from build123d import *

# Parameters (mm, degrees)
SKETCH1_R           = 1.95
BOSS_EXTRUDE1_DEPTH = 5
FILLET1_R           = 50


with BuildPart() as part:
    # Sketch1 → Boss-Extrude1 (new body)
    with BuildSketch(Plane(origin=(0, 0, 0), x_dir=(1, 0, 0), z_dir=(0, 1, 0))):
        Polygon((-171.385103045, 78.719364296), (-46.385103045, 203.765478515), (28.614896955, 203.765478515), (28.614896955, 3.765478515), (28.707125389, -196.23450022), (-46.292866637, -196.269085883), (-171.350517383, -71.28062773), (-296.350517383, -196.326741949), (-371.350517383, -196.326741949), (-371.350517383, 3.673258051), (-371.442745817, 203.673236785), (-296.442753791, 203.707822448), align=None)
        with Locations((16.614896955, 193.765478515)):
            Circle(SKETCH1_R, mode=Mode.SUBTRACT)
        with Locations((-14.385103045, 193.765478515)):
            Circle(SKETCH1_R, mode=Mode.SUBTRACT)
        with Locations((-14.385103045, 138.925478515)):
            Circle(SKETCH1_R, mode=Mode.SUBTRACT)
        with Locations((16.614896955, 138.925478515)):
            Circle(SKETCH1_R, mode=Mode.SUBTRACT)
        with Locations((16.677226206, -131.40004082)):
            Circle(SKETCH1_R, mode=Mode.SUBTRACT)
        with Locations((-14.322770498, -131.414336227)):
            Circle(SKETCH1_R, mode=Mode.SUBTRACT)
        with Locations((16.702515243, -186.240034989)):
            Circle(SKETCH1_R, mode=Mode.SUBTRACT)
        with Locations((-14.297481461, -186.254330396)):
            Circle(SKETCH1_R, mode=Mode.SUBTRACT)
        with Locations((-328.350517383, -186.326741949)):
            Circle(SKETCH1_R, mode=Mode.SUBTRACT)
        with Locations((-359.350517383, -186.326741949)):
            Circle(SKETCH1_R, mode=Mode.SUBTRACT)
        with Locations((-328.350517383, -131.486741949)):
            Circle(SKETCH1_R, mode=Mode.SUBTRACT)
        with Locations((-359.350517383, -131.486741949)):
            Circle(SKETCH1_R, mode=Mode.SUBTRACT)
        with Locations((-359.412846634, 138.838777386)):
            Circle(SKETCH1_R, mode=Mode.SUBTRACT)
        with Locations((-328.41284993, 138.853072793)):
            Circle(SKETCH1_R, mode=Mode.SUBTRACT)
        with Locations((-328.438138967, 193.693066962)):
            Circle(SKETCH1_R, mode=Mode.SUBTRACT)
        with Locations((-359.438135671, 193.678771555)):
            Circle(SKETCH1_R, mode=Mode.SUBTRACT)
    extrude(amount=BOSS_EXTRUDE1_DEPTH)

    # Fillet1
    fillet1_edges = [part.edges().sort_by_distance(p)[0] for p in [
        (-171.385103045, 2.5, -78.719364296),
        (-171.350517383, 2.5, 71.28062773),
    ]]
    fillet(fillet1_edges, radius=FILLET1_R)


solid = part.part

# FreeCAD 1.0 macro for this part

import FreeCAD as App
import Part
import Sketcher
from FreeCAD import Vector


def edges_at(feature, points):
    """Names of the edges that pass closest to the given points."""
    edges = feature.Shape.Edges
    near = lambda p: min(range(len(edges)), key=lambda i: edges[i].distToShape(Part.Vertex(*p))[0])
    return sorted({f"Edge{near(p) + 1}" for p in points})


def add_polygon(sketch, points):
    """Adds a closed chain of lines whose ends are joined by coincident constraints."""
    first, n = sketch.GeometryCount, len(points)
    for a, b in zip(points, points[1:] + points[:1]):
        sketch.addGeometry(Part.LineSegment(App.Vector(*a, 0), App.Vector(*b, 0)), False)
    for i in range(n):
        sketch.addConstraint(Sketcher.Constraint("Coincident", first + i, 2, first + (i + 1) % n, 1))

doc = App.newDocument("Part")
body = doc.addObject("PartDesign::Body", "Body")

# Sketch on XZ plane
sketch1 = body.newObject("Sketcher::SketchObject", "Sketch")
sketch1.AttachmentSupport = (doc.getObject("XZ_Plane"), [""])
sketch1.MapMode = "FlatFace"
add_polygon(sketch1, [(-46.385103, -203.765479), (-171.385103, -78.719364), (-296.442754, -203.707822), (-371.442746, -203.673237), (-371.350517, -3.673258), (-371.350517, 196.326742), (-296.350517, 196.326742), (-171.350517, 71.280628), (-46.292867, 196.269086), (28.707125, 196.2345), (28.614897, -3.765479), (28.614897, -203.765479)])  # lines 0-11
sketch1.addGeometry(Part.Circle(Vector(16.702515, 186.240035, 0), Vector(0, 0, 1), 1.95), False)  # 12
sketch1.addGeometry(Part.Circle(Vector(-14.297481, 186.25433, 0), Vector(0, 0, 1), 1.95), False)  # 13
sketch1.addGeometry(Part.Circle(Vector(16.677226, 131.400041, 0), Vector(0, 0, 1), 1.95), False)  # 14
sketch1.addGeometry(Part.Circle(Vector(-14.32277, 131.414336, 0), Vector(0, 0, 1), 1.95), False)  # 15
sketch1.addGeometry(Part.Circle(Vector(-328.350517, 186.326742, 0), Vector(0, 0, 1), 1.95), False)  # 16
sketch1.addGeometry(Part.Circle(Vector(-359.350517, 186.326742, 0), Vector(0, 0, 1), 1.95), False)  # 17
sketch1.addGeometry(Part.Circle(Vector(-328.350517, 131.486742, 0), Vector(0, 0, 1), 1.95), False)  # 18
sketch1.addGeometry(Part.Circle(Vector(-359.350517, 131.486742, 0), Vector(0, 0, 1), 1.95), False)  # 19
sketch1.addGeometry(Part.Circle(Vector(16.614897, -138.925479, 0), Vector(0, 0, 1), 1.95), False)  # 20
sketch1.addGeometry(Part.Circle(Vector(-14.385103, -138.925479, 0), Vector(0, 0, 1), 1.95), False)  # 21
sketch1.addGeometry(Part.Circle(Vector(16.614897, -193.765479, 0), Vector(0, 0, 1), 1.95), False)  # 22
sketch1.addGeometry(Part.Circle(Vector(-14.385103, -193.765479, 0), Vector(0, 0, 1), 1.95), False)  # 23
sketch1.addGeometry(Part.Circle(Vector(-328.41285, -138.853073, 0), Vector(0, 0, 1), 1.95), False)  # 24
sketch1.addGeometry(Part.Circle(Vector(-359.412847, -138.838777, 0), Vector(0, 0, 1), 1.95), False)  # 25
sketch1.addGeometry(Part.Circle(Vector(-328.438139, -193.693067, 0), Vector(0, 0, 1), 1.95), False)  # 26
sketch1.addGeometry(Part.Circle(Vector(-359.438136, -193.678772, 0), Vector(0, 0, 1), 1.95), False)  # 27
sketch1.addConstraint([
    Sketcher.Constraint("Vertical", 4),
    Sketcher.Constraint("Horizontal", 5),
    Sketcher.Constraint("Vertical", 10),
    Sketcher.Constraint("Horizontal", 11),
    Sketcher.Constraint("Equal", 12, 13),
    Sketcher.Constraint("Equal", 13, 14),
    Sketcher.Constraint("Equal", 14, 15),
    Sketcher.Constraint("Equal", 15, 16),
    Sketcher.Constraint("Equal", 16, 17),
    Sketcher.Constraint("Equal", 17, 18),
    Sketcher.Constraint("Equal", 18, 19),
    Sketcher.Constraint("Equal", 19, 20),
    Sketcher.Constraint("Equal", 20, 21),
    Sketcher.Constraint("Equal", 21, 22),
    Sketcher.Constraint("Equal", 22, 23),
    Sketcher.Constraint("Equal", 23, 24),
    Sketcher.Constraint("Equal", 24, 25),
    Sketcher.Constraint("Equal", 25, 26),
    Sketcher.Constraint("Equal", 26, 27),
    Sketcher.Constraint("Perpendicular", 2, 3),
    Sketcher.Constraint("Parallel", 0, 6),
    Sketcher.Constraint("Parallel", 1, 7),
    Sketcher.Constraint("Perpendicular", 3, 8),
    Sketcher.Constraint("Perpendicular", 8, 9),
    Sketcher.Constraint("Horizontal", 16, 3, 17, 3),
    Sketcher.Constraint("Horizontal", 18, 3, 19, 3),
    Sketcher.Constraint("Horizontal", 20, 3, 21, 3),
    Sketcher.Constraint("Horizontal", 22, 3, 23, 3),
    Sketcher.Constraint("Vertical", 16, 3, 18, 3),
    Sketcher.Constraint("Vertical", 17, 3, 19, 3),
    Sketcher.Constraint("Vertical", 20, 3, 22, 3),
    Sketcher.Constraint("Vertical", 21, 3, 23, 3),
    Sketcher.Constraint("Equal", 5, 11),
    Sketcher.Constraint("Equal", 4, 10),
    Sketcher.Constraint("Equal", 0, 1),
    Sketcher.Constraint("Equal", 1, 6),
    Sketcher.Constraint("Equal", 6, 7),
    Sketcher.Constraint("Diameter", 12, 3.9),
    Sketcher.Constraint("DistanceX", 5, 1, 5, 2, 75.0),
    Sketcher.Constraint("DistanceY", 4, 1, 4, 2, 200.0),
    Sketcher.Constraint("Distance", 2, 75.0),
    Sketcher.Constraint("Distance", 3, 200.0),
    Sketcher.Constraint("DistanceX", 17, 3, 16, 3, 31.0),
    Sketcher.Constraint("DistanceX", 21, 3, 20, 3, 31.0),
    Sketcher.Constraint("DistanceX", 0, 2, 21, 3, 157.0),
    Sketcher.Constraint("DistanceX", 3, 2, 19, 3, 12.0),
    Sketcher.Constraint("DistanceY", 17, 3, 4, 2, 10.0),
    Sketcher.Constraint("DistanceX", 18, 3, 6, 2, 157.0),
    Sketcher.Constraint("DistanceY", 10, 2, 22, 3, 10.0),
    Sketcher.Constraint("DistanceY", 18, 3, 16, 3, 54.84),
    Sketcher.Constraint("DistanceY", 22, 3, 20, 3, 54.84),
    Sketcher.Constraint("DistanceY", -1, 1, 8, 2, 196.2345),
    Sketcher.Constraint("DistanceY", 15, 3, 12, 3, 54.825699),
    Sketcher.Constraint("DistanceY", 14, 3, 16, 3, 54.926701),
    Sketcher.Constraint("DistanceY", 27, 3, 24, 3, 54.825699),
    Sketcher.Constraint("DistanceX", 2, 2, 25, 3, 12.029899),
    Sketcher.Constraint("DistanceX", 14, 3, 8, 2, 12.029899),
    Sketcher.Constraint("DistanceX", 13, 3, -1, 1, 14.297481),
    Sketcher.Constraint("DistanceY", -1, 1, 13, 3, 186.25433),
    Sketcher.Constraint("DistanceY", -1, 1, 14, 3, 131.400041),
    Sketcher.Constraint("DistanceX", 15, 3, -1, 1, 14.32277),
    Sketcher.Constraint("DistanceX", 24, 3, -1, 1, 328.41285),
    Sketcher.Constraint("DistanceX", 26, 3, -1, 1, 328.438139),
    Sketcher.Constraint("DistanceY", 27, 3, -1, 1, 193.678772),
    Sketcher.Constraint("DistanceX", 14, 3, 12, 3, 0.025289),
    Sketcher.Constraint("DistanceX", 20, 3, 14, 3, 0.062329),
    Sketcher.Constraint("DistanceX", 13, 3, 20, 3, 30.912378),
    Sketcher.Constraint("DistanceY", 25, 3, 19, 3, 270.325519),
    Sketcher.Constraint("DistanceY", 26, 3, 25, 3, 54.85429),
    Sketcher.Constraint("DistanceX", 27, 3, 25, 3, 0.025289),
    Sketcher.Constraint("DistanceY", 24, 3, 0, 2, 60.133708),
    Sketcher.Constraint("DistanceY", 6, 2, 15, 3, 60.133708),
])
pad1 = body.newObject("PartDesign::Pad", "Pad")
pad1.Profile = sketch1
pad1.Length = 5
pad1.Reversed = True
doc.recompute()

fillet = body.newObject("PartDesign::Fillet", "Fillet")
fillet.Base = (pad1, edges_at(pad1, [(-171.385, 2.5, -78.719), (-171.351, 2.5, 71.281)]))
fillet.Radius = 50

doc.recompute()
